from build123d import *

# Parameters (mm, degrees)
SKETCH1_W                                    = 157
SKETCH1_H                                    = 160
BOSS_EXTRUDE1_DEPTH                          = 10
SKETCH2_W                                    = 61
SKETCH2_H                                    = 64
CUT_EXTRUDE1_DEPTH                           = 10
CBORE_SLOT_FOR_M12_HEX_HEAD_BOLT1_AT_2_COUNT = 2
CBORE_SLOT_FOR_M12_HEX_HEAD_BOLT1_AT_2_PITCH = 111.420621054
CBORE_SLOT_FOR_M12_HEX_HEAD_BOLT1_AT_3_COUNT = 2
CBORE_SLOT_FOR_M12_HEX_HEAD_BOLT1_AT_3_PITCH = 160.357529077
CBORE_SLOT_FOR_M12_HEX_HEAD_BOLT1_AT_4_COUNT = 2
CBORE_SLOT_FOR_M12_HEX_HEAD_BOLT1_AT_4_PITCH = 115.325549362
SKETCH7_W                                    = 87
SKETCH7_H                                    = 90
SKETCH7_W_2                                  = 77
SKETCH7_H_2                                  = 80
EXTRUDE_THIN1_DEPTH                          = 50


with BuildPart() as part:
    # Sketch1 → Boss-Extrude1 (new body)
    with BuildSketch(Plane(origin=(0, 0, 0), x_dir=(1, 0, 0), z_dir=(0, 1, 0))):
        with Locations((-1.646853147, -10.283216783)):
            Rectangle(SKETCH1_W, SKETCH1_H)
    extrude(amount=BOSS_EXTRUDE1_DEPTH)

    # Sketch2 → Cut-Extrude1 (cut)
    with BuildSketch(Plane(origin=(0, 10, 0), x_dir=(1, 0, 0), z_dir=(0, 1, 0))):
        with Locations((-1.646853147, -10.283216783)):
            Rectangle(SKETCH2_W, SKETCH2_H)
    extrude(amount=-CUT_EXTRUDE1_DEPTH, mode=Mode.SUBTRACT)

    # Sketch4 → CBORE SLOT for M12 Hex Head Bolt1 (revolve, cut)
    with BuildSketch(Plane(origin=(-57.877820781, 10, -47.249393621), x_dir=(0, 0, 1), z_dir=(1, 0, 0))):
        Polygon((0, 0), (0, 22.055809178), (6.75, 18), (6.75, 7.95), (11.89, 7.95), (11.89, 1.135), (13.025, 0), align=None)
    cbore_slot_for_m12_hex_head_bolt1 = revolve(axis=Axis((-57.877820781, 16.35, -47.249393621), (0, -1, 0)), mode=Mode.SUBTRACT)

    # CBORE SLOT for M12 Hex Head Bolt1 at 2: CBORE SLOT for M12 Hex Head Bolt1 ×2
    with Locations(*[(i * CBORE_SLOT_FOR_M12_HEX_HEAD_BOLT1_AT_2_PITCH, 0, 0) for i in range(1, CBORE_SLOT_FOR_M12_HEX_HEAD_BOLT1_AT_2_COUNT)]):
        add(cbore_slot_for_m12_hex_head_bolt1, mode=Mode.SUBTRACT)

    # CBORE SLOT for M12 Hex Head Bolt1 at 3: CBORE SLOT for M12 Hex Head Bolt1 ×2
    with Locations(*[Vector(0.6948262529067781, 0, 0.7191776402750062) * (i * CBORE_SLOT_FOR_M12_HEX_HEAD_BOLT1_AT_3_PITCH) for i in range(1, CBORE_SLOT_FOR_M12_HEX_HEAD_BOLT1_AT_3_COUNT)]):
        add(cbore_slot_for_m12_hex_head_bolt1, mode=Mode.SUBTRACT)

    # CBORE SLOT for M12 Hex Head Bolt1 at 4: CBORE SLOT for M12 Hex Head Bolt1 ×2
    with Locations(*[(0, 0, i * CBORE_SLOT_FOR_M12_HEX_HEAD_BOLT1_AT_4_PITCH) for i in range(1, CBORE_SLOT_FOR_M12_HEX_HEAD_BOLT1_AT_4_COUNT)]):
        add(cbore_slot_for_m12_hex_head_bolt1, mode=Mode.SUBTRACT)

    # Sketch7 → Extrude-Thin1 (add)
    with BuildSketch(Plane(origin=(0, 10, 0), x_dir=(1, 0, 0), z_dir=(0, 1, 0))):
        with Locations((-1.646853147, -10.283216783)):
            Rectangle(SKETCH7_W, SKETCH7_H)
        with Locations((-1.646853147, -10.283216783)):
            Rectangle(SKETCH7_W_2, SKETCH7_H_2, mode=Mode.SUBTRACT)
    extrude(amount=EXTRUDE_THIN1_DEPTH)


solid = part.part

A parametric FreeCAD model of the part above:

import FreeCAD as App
import Part
import Sketcher
Q = App.Units.Quantity

doc = App.newDocument("Part")
body = doc.addObject("PartDesign::Body", "Body")

# Sketch on XZ plane
sketch1 = doc.addObject("Sketcher::SketchObject", "Sketch")
body.addObject(sketch1)
sketch1.AttachmentSupport = (doc.XZ_Plane, [""])
sketch1.MapMode = "FlatFace"
sketch1.addGeometry(Part.LineSegment(App.Vector(-80.146853, -69.716783, 0), App.Vector(-80.146853, 90.283217, 0)), False)
sketch1.addGeometry(Part.LineSegment(App.Vector(-80.146853, 90.283217, 0), App.Vector(76.853147, 90.283217, 0)), False)
sketch1.addGeometry(Part.LineSegment(App.Vector(76.853147, 90.283217, 0), App.Vector(76.853147, -69.716783, 0)), False)
sketch1.addGeometry(Part.LineSegment(App.Vector(76.853147, -69.716783, 0), App.Vector(-80.146853, -69.716783, 0)), False)
sketch1.addConstraint(Sketcher.Constraint("Coincident", 0, 2, 1, 1))
sketch1.addConstraint(Sketcher.Constraint("Coincident", 1, 2, 2, 1))
sketch1.addConstraint(Sketcher.Constraint("Coincident", 2, 2, 3, 1))
sketch1.addConstraint(Sketcher.Constraint("Coincident", 3, 2, 0, 1))
sketch1.addConstraint(Sketcher.Constraint("Vertical", 0))
sketch1.addConstraint(Sketcher.Constraint("Horizontal", 1))
sketch1.addConstraint(Sketcher.Constraint("Vertical", 2))
sketch1.addConstraint(Sketcher.Constraint("Horizontal", 3))
sketch1.addConstraint(Sketcher.Constraint("DistanceX", 1, 1, 1, 2, 157.0))
sketch1.addConstraint(Sketcher.Constraint("DistanceY", 0, 1, 0, 2, 160.0))
sketch1.addConstraint(Sketcher.Constraint("DistanceX", 0, 2, -1, 1, 80.146853))
sketch1.addConstraint(Sketcher.Constraint("DistanceY", -1, 1, 0, 2, 90.283217))
pad1 = doc.addObject("PartDesign::Pad", "Pad")
body.addObject(pad1)
pad1.Profile = sketch1
pad1.Length = 10
pad1.Reversed = True

# Sketch on XZ plane
sketch2 = doc.addObject("Sketcher::SketchObject", "Sketch001")
body.addObject(sketch2)
sketch2.AttachmentSupport = (doc.XZ_Plane, [""])
sketch2.MapMode = "FlatFace"
sketch2.AttachmentOffset = App.Placement(App.Vector(0, 0, -10), App.Rotation())
sketch2.addGeometry(Part.LineSegment(App.Vector(-32.146853, -21.716783, 0), App.Vector(-32.146853, 42.283217, 0)), False)
sketch2.addGeometry(Part.LineSegment(App.Vector(-32.146853, 42.283217, 0), App.Vector(28.853147, 42.283217, 0)), False)
sketch2.addGeometry(Part.LineSegment(App.Vector(28.853147, 42.283217, 0), App.Vector(28.853147, -21.716783, 0)), False)
sketch2.addGeometry(Part.LineSegment(App.Vector(28.853147, -21.716783, 0), App.Vector(-32.146853, -21.716783, 0)), False)
sketch2.addConstraint(Sketcher.Constraint("Coincident", 0, 2, 1, 1))
sketch2.addConstraint(Sketcher.Constraint("Coincident", 1, 2, 2, 1))
sketch2.addConstraint(Sketcher.Constraint("Coincident", 2, 2, 3, 1))
sketch2.addConstraint(Sketcher.Constraint("Coincident", 3, 2, 0, 1))
sketch2.addConstraint(Sketcher.Constraint("Vertical", 0))
sketch2.addConstraint(Sketcher.Constraint("Horizontal", 1))
sketch2.addConstraint(Sketcher.Constraint("Vertical", 2))
sketch2.addConstraint(Sketcher.Constraint("Horizontal", 3))
sketch2.addConstraint(Sketcher.Constraint("DistanceX", 1, 1, 1, 2, 61.0))
sketch2.addConstraint(Sketcher.Constraint("DistanceY", 0, 1, 0, 2, 64.0))
sketch2.addConstraint(Sketcher.Constraint("DistanceX", 0, 2, -1, 1, 32.146853))
sketch2.addConstraint(Sketcher.Constraint("DistanceY", -1, 1, 0, 2, 42.283217))
pocket1 = doc.addObject("PartDesign::Pocket", "Pocket")
body.addObject(pocket1)
pocket1.Profile = sketch2
pocket1.Length = 10
pocket1.Reversed = True

# Sketch on YZ plane
sketch3 = doc.addObject("Sketcher::SketchObject", "Sketch002")
body.addObject(sketch3)
sketch3.AttachmentSupport = (doc.YZ_Plane, [""])
sketch3.MapMode = "FlatFace"
sketch3.AttachmentOffset = App.Placement(App.Vector(0, 0, -57.877821), App.Rotation())
sketch3.addGeometry(Part.LineSegment(App.Vector(-12.055809, -47.249394, 0), App.Vector(10, -47.249394, 0)), False)
sketch3.addGeometry(Part.LineSegment(App.Vector(10, -47.249394, 0), App.Vector(10, -34.224394, 0)), False)
sketch3.addGeometry(Part.LineSegment(App.Vector(10, -34.224394, 0), App.Vector(8.865, -35.359394, 0)), False)
sketch3.addGeometry(Part.LineSegment(App.Vector(8.865, -35.359394, 0), App.Vector(2.05, -35.359394, 0)), False)
sketch3.addGeometry(Part.LineSegment(App.Vector(2.05, -35.359394, 0), App.Vector(2.05, -40.499394, 0)), False)
sketch3.addGeometry(Part.LineSegment(App.Vector(2.05, -40.499394, 0), App.Vector(-8, -40.499394, 0)), False)
sketch3.addGeometry(Part.LineSegment(App.Vector(-8, -40.499394, 0), App.Vector(-12.055809, -47.249394, 0)), False)
sketch3.addGeometry(Part.LineSegment(App.Vector(10, -47.249394, 0), App.Vector(-12.055809, -47.249394, 0)), True)  # axis
sketch3.addConstraint(Sketcher.Constraint("Coincident", 0, 2, 1, 1))
sketch3.addConstraint(Sketcher.Constraint("Coincident", 1, 2, 2, 1))
sketch3.addConstraint(Sketcher.Constraint("Coincident", 2, 2, 3, 1))
sketch3.addConstraint(Sketcher.Constraint("Coincident", 3, 2, 4, 1))
sketch3.addConstraint(Sketcher.Constraint("Coincident", 4, 2, 5, 1))
sketch3.addConstraint(Sketcher.Constraint("Coincident", 5, 2, 6, 1))
sketch3.addConstraint(Sketcher.Constraint("Coincident", 6, 2, 0, 1))
sketch3.addConstraint(Sketcher.Constraint("Horizontal", 0))
sketch3.addConstraint(Sketcher.Constraint("Vertical", 1))
sketch3.addConstraint(Sketcher.Constraint("Horizontal", 3))
sketch3.addConstraint(Sketcher.Constraint("Vertical", 4))
sketch3.addConstraint(Sketcher.Constraint("Horizontal", 5))
sketch3.addConstraint(Sketcher.Constraint("Horizontal", 7))
sketch3.addConstraint(Sketcher.Constraint("Coincident", 7, 1, 0, 2))
sketch3.addConstraint(Sketcher.Constraint("Equal", 0, 7))
sketch3.addConstraint(Sketcher.Constraint("Angle", 2, Q("-135 deg")))
sketch3.addConstraint(Sketcher.Constraint("Angle", 6, Q("-121 deg")))
sketch3.addConstraint(Sketcher.Constraint("DistanceX", -1, 1, 0, 2, 10.0))
sketch3.addConstraint(Sketcher.Constraint("DistanceX", 5, 2, -1, 1, 8.0))
sketch3.addConstraint(Sketcher.Constraint("DistanceX", 5, 2, 5, 1, 10.05))
sketch3.addConstraint(Sketcher.Constraint("DistanceY", 4, 2, 4, 1, 5.14))
sketch3.addConstraint(Sketcher.Constraint("DistanceX", 3, 2, 3, 1, 6.815))
sketch3.addConstraint(Sketcher.Constraint("DistanceY", 1, 1, 1, 2, 13.025))
sketch3.addConstraint(Sketcher.Constraint("DistanceY", 0, 2, -1, 1, 47.249394))
groove = doc.addObject("PartDesign::Groove", "Groove")
body.addObject(groove)
groove.Profile = sketch3
groove.ReferenceAxis = (sketch3, ["Axis0"])
groove.Angle = 360
doc.recompute()

linearpattern = doc.addObject("PartDesign::LinearPattern", "LinearPattern")
body.addObject(linearpattern)
linearpattern.Originals = [groove]
linearpattern.Direction = (doc.X_Axis, [""])
linearpattern.Mode = "offset"
linearpattern.Offset = 111.420621
linearpattern.Occurrences = 2
body.Tip = linearpattern
doc.recompute()

datumline = doc.addObject("PartDesign::Line", "DatumLine")
body.addObject(datumline)
datumline.Placement = App.Placement(App.Vector(0, 0, 0), App.Rotation(App.Vector(0, 0, 1), App.Vector(0.694826253, 0, 0.71917764)))
linearpattern2 = doc.addObject("PartDesign::LinearPattern", "LinearPattern001")
body.addObject(linearpattern2)
linearpattern2.Originals = [groove]
linearpattern2.Direction = (datumline, [""])
linearpattern2.Mode = "offset"
linearpattern2.Offset = 160.357529
linearpattern2.Occurrences = 2
body.Tip = linearpattern2
doc.recompute()

linearpattern3 = doc.addObject("PartDesign::LinearPattern", "LinearPattern002")
body.addObject(linearpattern3)
linearpattern3.Originals = [groove]
linearpattern3.Direction = (doc.Z_Axis, [""])
linearpattern3.Mode = "offset"
linearpattern3.Offset = 115.325549
linearpattern3.Occurrences = 2
body.Tip = linearpattern3

# Sketch on XZ plane
sketch4 = doc.addObject("Sketcher::SketchObject", "Sketch003")
body.addObject(sketch4)
sketch4.AttachmentSupport = (doc.XZ_Plane, [""])
sketch4.MapMode = "FlatFace"
sketch4.AttachmentOffset = App.Placement(App.Vector(0, 0, -10), App.Rotation())
sketch4.addGeometry(Part.LineSegment(App.Vector(-45.146853, -34.716783, 0), App.Vector(-45.146853, 55.283217, 0)), False)
sketch4.addGeometry(Part.LineSegment(App.Vector(-45.146853, 55.283217, 0), App.Vector(41.853147, 55.283217, 0)), False)
sketch4.addGeometry(Part.LineSegment(App.Vector(41.853147, 55.283217, 0), App.Vector(41.853147, -34.716783, 0)), False)
sketch4.addGeometry(Part.LineSegment(App.Vector(41.853147, -34.716783, 0), App.Vector(-45.146853, -34.716783, 0)), False)
sketch4.addGeometry(Part.LineSegment(App.Vector(36.853147, 50.283217, 0), App.Vector(-40.146853, 50.283217, 0)), False)
sketch4.addGeometry(Part.LineSegment(App.Vector(-40.146853, 50.283217, 0), App.Vector(-40.146853, -29.716783, 0)), False)
sketch4.addGeometry(Part.LineSegment(App.Vector(-40.146853, -29.716783, 0), App.Vector(36.853147, -29.716783, 0)), False)
sketch4.addGeometry(Part.LineSegment(App.Vector(36.853147, -29.716783, 0), App.Vector(36.853147, 50.283217, 0)), False)
sketch4.addConstraint(Sketcher.Constraint("Coincident", 0, 2, 1, 1))
sketch4.addConstraint(Sketcher.Constraint("Coincident", 1, 2, 2, 1))
sketch4.addConstraint(Sketcher.Constraint("Coincident", 2, 2, 3, 1))
sketch4.addConstraint(Sketcher.Constraint("Coincident", 3, 2, 0, 1))
sketch4.addConstraint(Sketcher.Constraint("Coincident", 4, 2, 5, 1))
sketch4.addConstraint(Sketcher.Constraint("Coincident", 5, 2, 6, 1))
sketch4.addConstraint(Sketcher.Constraint("Coincident", 6, 2, 7, 1))
sketch4.addConstraint(Sketcher.Constraint("Coincident", 7, 2, 4, 1))
sketch4.addConstraint(Sketcher.Constraint("Vertical", 0))
sketch4.addConstraint(Sketcher.Constraint("Horizontal", 1))
sketch4.addConstraint(Sketcher.Constraint("Vertical", 2))
sketch4.addConstraint(Sketcher.Constraint("Horizontal", 3))
sketch4.addConstraint(Sketcher.Constraint("Horizontal", 4))
sketch4.addConstraint(Sketcher.Constraint("Vertical", 5))
sketch4.addConstraint(Sketcher.Constraint("Horizontal", 6))
sketch4.addConstraint(Sketcher.Constraint("Vertical", 7))
sketch4.addConstraint(Sketcher.Constraint("DistanceX", 1, 1, 1, 2, 87.0))
sketch4.addConstraint(Sketcher.Constraint("DistanceX", 4, 2, 4, 1, 77.0))
sketch4.addConstraint(Sketcher.Constraint("DistanceY", 0, 1, 0, 2, 90.0))
sketch4.addConstraint(Sketcher.Constraint("DistanceY", 5, 2, 5, 1, 80.0))
sketch4.addConstraint(Sketcher.Constraint("DistanceX", 0, 2, 4, 2, 5.0))
sketch4.addConstraint(Sketcher.Constraint("DistanceY", 4, 2, 0, 2, 5.0))
sketch4.addConstraint(Sketcher.Constraint("DistanceX", 0, 2, -1, 1, 45.146853))
sketch4.addConstraint(Sketcher.Constraint("DistanceY", -1, 1, 0, 2, 55.283217))
pad2 = doc.addObject("PartDesign::Pad", "Pad001")
body.addObject(pad2)
pad2.Profile = sketch4
pad2.Length = 50
pad2.Reversed = True

doc.recompute()
